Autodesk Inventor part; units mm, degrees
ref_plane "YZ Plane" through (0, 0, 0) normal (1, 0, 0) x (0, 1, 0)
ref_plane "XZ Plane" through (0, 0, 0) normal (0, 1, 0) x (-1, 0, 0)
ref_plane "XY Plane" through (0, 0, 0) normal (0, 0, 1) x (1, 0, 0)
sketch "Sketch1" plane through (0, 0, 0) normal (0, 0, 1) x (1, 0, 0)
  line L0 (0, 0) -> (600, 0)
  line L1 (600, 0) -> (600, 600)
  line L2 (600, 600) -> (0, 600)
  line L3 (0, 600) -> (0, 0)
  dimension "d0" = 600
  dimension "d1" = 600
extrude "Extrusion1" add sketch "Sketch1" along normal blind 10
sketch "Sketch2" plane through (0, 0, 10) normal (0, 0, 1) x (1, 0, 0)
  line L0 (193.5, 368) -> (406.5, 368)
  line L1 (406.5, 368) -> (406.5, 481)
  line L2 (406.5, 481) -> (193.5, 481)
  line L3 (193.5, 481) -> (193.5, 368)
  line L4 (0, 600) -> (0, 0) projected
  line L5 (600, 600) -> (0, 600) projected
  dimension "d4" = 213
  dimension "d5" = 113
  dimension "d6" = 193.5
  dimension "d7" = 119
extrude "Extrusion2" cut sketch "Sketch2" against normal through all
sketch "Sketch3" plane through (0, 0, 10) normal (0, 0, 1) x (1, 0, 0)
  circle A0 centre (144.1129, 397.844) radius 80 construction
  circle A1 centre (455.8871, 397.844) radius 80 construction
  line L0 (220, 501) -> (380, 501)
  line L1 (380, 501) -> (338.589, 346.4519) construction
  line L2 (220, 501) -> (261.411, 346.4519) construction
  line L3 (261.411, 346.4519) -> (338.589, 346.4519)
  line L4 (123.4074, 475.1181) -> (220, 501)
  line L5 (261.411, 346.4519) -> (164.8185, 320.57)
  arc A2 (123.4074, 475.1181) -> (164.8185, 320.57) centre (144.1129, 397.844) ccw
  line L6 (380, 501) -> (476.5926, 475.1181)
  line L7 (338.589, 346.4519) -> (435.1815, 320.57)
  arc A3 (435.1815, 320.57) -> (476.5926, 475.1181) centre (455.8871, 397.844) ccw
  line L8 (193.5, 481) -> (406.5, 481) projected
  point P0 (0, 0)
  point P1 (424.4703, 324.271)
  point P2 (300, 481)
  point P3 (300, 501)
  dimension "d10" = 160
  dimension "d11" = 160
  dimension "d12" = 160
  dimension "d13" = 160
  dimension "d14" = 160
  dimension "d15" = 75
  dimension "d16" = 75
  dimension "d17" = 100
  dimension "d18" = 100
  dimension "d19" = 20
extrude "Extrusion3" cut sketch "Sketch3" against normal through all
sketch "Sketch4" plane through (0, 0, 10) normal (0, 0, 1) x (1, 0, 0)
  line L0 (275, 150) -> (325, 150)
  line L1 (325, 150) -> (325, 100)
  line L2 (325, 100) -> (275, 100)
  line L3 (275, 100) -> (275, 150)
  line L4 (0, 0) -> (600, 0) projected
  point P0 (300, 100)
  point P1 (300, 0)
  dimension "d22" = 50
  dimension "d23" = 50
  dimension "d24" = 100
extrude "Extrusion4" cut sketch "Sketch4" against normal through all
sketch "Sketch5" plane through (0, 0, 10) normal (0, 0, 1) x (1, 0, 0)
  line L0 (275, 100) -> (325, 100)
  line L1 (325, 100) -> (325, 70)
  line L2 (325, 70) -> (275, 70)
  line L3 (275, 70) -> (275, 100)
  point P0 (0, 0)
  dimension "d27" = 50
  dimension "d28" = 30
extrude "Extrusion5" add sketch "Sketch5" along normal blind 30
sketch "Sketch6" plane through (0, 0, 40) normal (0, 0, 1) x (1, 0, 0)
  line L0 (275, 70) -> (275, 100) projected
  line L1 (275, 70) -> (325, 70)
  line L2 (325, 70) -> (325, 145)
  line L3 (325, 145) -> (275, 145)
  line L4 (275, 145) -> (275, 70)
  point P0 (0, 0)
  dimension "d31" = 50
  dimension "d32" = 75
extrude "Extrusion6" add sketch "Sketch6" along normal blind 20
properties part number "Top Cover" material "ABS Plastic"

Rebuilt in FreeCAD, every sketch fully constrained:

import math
import FreeCAD as App
import Part
import Sketcher

V = App.Vector
Q = App.Units.Quantity


def add_polygon(sketch, points):
    """Adds a closed chain of lines whose ends are joined by coincident constraints."""
    first, n = sketch.GeometryCount, len(points)
    for a, b in zip(points, points[1:] + points[:1]):
        sketch.addGeometry(Part.LineSegment(App.Vector(*a, 0), App.Vector(*b, 0)), False)
    for i in range(n):
        sketch.addConstraint(Sketcher.Constraint("Coincident", first + i, 2, first + (i + 1) % n, 1))

doc = App.newDocument("Part")
body = doc.addObject("PartDesign::Body", "Body")

sketch1 = body.newObject("Sketcher::SketchObject", "Sketch")
sketch1.AttachmentSupport = (doc.getObject("XY_Plane"), [""])
sketch1.MapMode = "FlatFace"
add_polygon(sketch1, [(0, 600), (0, 0), (600, 0), (600, 600)])
sketch1.addConstraint(Sketcher.Constraint("Vertical", 0))
sketch1.addConstraint(Sketcher.Constraint("Horizontal", 1))
sketch1.addConstraint(Sketcher.Constraint("Vertical", 2))
sketch1.addConstraint(Sketcher.Constraint("Horizontal", 3))
sketch1.addConstraint(Sketcher.Constraint("Coincident", 0, 2, -1, 1))
sketch1.addConstraint(Sketcher.Constraint("Equal", 3, 0))
sketch1.addConstraint(Sketcher.Constraint("DistanceX", 1, 1, 1, 2, 600.0))
pad1 = body.newObject("PartDesign::Pad", "Pad")
pad1.Profile = sketch1
pad1.Length = 10

sketch2 = body.newObject("Sketcher::SketchObject", "Sketch001")
sketch2.AttachmentSupport = (doc.getObject("XY_Plane"), [""])
sketch2.MapMode = "FlatFace"
sketch2.AttachmentOffset = App.Placement(V(0, 0, 10), App.Rotation())
add_polygon(sketch2, [(194, 481), (194, 368), (406, 368), (406, 481)])
sketch2.addConstraint(Sketcher.Constraint("Vertical", 0))
sketch2.addConstraint(Sketcher.Constraint("Horizontal", 1))
sketch2.addConstraint(Sketcher.Constraint("Vertical", 2))
sketch2.addConstraint(Sketcher.Constraint("Horizontal", 3))
sketch2.addConstraint(Sketcher.Constraint("DistanceX", 1, 1, 1, 2, 213.0))
sketch2.addConstraint(Sketcher.Constraint("DistanceY", 0, 2, 0, 1, 113.0))
sketch2.addConstraint(Sketcher.Constraint("DistanceX", -1, 1, 0, 2, 193.5))
sketch2.addConstraint(Sketcher.Constraint("DistanceY", -1, 1, 0, 2, 368.0))
pocket1 = body.newObject("PartDesign::Pocket", "Pocket")
pocket1.Profile = sketch2
pocket1.Type = "ThroughAll"

sketch3 = body.newObject("Sketcher::SketchObject", "Sketch002")
sketch3.AttachmentSupport = (doc.getObject("XY_Plane"), [""])
sketch3.MapMode = "FlatFace"
sketch3.AttachmentOffset = App.Placement(V(0, 0, 10), App.Rotation())
sketch3.addGeometry(Part.LineSegment(V(380, 501, 0), V(220, 501, 0)), False)
sketch3.addGeometry(Part.LineSegment(V(220, 501, 0), V(123, 475, 0)), False)
sketch3.addGeometry(Part.ArcOfCircle(Part.Circle(V(144, 398, 0), V(0, 0, 1), 80), math.radians(105), math.radians(285)), False)
sketch3.addGeometry(Part.LineSegment(V(165, 321, 0), V(261, 346, 0)), False)
sketch3.addGeometry(Part.LineSegment(V(261, 346, 0), V(339, 346, 0)), False)
sketch3.addGeometry(Part.LineSegment(V(339, 346, 0), V(435, 321, 0)), False)
sketch3.addGeometry(Part.ArcOfCircle(Part.Circle(V(456, 398, 0), V(0, 0, 1), 80), math.radians(-105), math.radians(75)), False)
sketch3.addGeometry(Part.LineSegment(V(477, 475, 0), V(380, 501, 0)), False)
sketch3.addConstraint(Sketcher.Constraint("Coincident", 0, 2, 1, 1))
sketch3.addConstraint(Sketcher.Constraint("Tangent", 1, 2, 2, 1))
sketch3.addConstraint(Sketcher.Constraint("Tangent", 2, 2, 3, 1))
sketch3.addConstraint(Sketcher.Constraint("Coincident", 3, 2, 4, 1))
sketch3.addConstraint(Sketcher.Constraint("Coincident", 4, 2, 5, 1))
sketch3.addConstraint(Sketcher.Constraint("Tangent", 5, 2, 6, 1))
sketch3.addConstraint(Sketcher.Constraint("Tangent", 6, 2, 7, 1))
sketch3.addConstraint(Sketcher.Constraint("Coincident", 7, 2, 0, 1))
sketch3.addConstraint(Sketcher.Constraint("Horizontal", 0))
sketch3.addConstraint(Sketcher.Constraint("Horizontal", 4))
sketch3.addConstraint(Sketcher.Constraint("Equal", 2, 6))
sketch3.addConstraint(Sketcher.Constraint("Parallel", 1, 3))
sketch3.addConstraint(Sketcher.Constraint("Parallel", 5, 7))
sketch3.addConstraint(Sketcher.Constraint("Horizontal", 2, 3, 6, 3))
sketch3.addConstraint(Sketcher.Constraint("Horizontal", 2, 2, 5, 2))
sketch3.addConstraint(Sketcher.Constraint("Equal", 1, 3))
sketch3.addConstraint(Sketcher.Constraint("Radius", 2, 80.0))
sketch3.addConstraint(Sketcher.Constraint("DistanceX", 0, 2, 0, 1, 160.0))
sketch3.addConstraint(Sketcher.Constraint("Distance", 1, 100.0))
sketch3.addConstraint(Sketcher.Constraint("Angle", 1, Q("-165 deg")))
sketch3.addConstraint(Sketcher.Constraint("DistanceX", -1, 1, 0, 2, 220.0))
sketch3.addConstraint(Sketcher.Constraint("DistanceY", -1, 1, 0, 2, 501.0))
pocket2 = body.newObject("PartDesign::Pocket", "Pocket001")
pocket2.Profile = sketch3
pocket2.Type = "ThroughAll"

sketch4 = body.newObject("Sketcher::SketchObject", "Sketch003")
sketch4.AttachmentSupport = (doc.getObject("XY_Plane"), [""])
sketch4.MapMode = "FlatFace"
sketch4.AttachmentOffset = App.Placement(V(0, 0, 10), App.Rotation())
add_polygon(sketch4, [(325, 150), (275, 150), (275, 100), (325, 100)])
sketch4.addConstraint(Sketcher.Constraint("Horizontal", 0))
sketch4.addConstraint(Sketcher.Constraint("Vertical", 1))
sketch4.addConstraint(Sketcher.Constraint("Horizontal", 2))
sketch4.addConstraint(Sketcher.Constraint("Vertical", 3))
sketch4.addConstraint(Sketcher.Constraint("Equal", 2, 1))
sketch4.addConstraint(Sketcher.Constraint("DistanceX", 0, 2, 0, 1, 50.0))
sketch4.addConstraint(Sketcher.Constraint("DistanceY", -1, 1, 1, 2, 100.0))
sketch4.addConstraint(Sketcher.Constraint("DistanceX", -1, 1, 0, 2, 275.0))
pocket3 = body.newObject("PartDesign::Pocket", "Pocket002")
pocket3.Profile = sketch4
pocket3.Type = "ThroughAll"

sketch5 = body.newObject("Sketcher::SketchObject", "Sketch004")
sketch5.AttachmentSupport = (doc.getObject("XY_Plane"), [""])
sketch5.MapMode = "FlatFace"
sketch5.AttachmentOffset = App.Placement(V(0, 0, 10), App.Rotation())
add_polygon(sketch5, [(325, 100), (275, 100), (275, 70), (325, 70)])
sketch5.addConstraint(Sketcher.Constraint("Horizontal", 0))
sketch5.addConstraint(Sketcher.Constraint("Vertical", 1))
sketch5.addConstraint(Sketcher.Constraint("Horizontal", 2))
sketch5.addConstraint(Sketcher.Constraint("Vertical", 3))
sketch5.addConstraint(Sketcher.Constraint("DistanceX", 0, 2, 0, 1, 50.0))
sketch5.addConstraint(Sketcher.Constraint("DistanceY", 1, 2, 1, 1, 30.0))
sketch5.addConstraint(Sketcher.Constraint("DistanceX", -1, 1, 0, 2, 275.0))
sketch5.addConstraint(Sketcher.Constraint("DistanceY", -1, 1, 0, 2, 100.0))
pad2 = body.newObject("PartDesign::Pad", "Pad001")
pad2.Profile = sketch5
pad2.Length = 30

sketch6 = body.newObject("Sketcher::SketchObject", "Sketch005")
sketch6.AttachmentSupport = (doc.getObject("XY_Plane"), [""])
sketch6.MapMode = "FlatFace"
sketch6.AttachmentOffset = App.Placement(V(0, 0, 40), App.Rotation())
add_polygon(sketch6, [(275, 145), (275, 70), (325, 70), (325, 145)])
sketch6.addConstraint(Sketcher.Constraint("Vertical", 0))
sketch6.addConstraint(Sketcher.Constraint("Horizontal", 1))
sketch6.addConstraint(Sketcher.Constraint("Vertical", 2))
sketch6.addConstraint(Sketcher.Constraint("Horizontal", 3))
sketch6.addConstraint(Sketcher.Constraint("DistanceX", 1, 1, 1, 2, 50.0))
sketch6.addConstraint(Sketcher.Constraint("DistanceY", 0, 2, 0, 1, 75.0))
sketch6.addConstraint(Sketcher.Constraint("DistanceX", -1, 1, 0, 2, 275.0))
sketch6.addConstraint(Sketcher.Constraint("DistanceY", -1, 1, 0, 2, 70.0))
pad3 = body.newObject("PartDesign::Pad", "Pad002")
pad3.Profile = sketch6
pad3.Length = 20

doc.recompute()
